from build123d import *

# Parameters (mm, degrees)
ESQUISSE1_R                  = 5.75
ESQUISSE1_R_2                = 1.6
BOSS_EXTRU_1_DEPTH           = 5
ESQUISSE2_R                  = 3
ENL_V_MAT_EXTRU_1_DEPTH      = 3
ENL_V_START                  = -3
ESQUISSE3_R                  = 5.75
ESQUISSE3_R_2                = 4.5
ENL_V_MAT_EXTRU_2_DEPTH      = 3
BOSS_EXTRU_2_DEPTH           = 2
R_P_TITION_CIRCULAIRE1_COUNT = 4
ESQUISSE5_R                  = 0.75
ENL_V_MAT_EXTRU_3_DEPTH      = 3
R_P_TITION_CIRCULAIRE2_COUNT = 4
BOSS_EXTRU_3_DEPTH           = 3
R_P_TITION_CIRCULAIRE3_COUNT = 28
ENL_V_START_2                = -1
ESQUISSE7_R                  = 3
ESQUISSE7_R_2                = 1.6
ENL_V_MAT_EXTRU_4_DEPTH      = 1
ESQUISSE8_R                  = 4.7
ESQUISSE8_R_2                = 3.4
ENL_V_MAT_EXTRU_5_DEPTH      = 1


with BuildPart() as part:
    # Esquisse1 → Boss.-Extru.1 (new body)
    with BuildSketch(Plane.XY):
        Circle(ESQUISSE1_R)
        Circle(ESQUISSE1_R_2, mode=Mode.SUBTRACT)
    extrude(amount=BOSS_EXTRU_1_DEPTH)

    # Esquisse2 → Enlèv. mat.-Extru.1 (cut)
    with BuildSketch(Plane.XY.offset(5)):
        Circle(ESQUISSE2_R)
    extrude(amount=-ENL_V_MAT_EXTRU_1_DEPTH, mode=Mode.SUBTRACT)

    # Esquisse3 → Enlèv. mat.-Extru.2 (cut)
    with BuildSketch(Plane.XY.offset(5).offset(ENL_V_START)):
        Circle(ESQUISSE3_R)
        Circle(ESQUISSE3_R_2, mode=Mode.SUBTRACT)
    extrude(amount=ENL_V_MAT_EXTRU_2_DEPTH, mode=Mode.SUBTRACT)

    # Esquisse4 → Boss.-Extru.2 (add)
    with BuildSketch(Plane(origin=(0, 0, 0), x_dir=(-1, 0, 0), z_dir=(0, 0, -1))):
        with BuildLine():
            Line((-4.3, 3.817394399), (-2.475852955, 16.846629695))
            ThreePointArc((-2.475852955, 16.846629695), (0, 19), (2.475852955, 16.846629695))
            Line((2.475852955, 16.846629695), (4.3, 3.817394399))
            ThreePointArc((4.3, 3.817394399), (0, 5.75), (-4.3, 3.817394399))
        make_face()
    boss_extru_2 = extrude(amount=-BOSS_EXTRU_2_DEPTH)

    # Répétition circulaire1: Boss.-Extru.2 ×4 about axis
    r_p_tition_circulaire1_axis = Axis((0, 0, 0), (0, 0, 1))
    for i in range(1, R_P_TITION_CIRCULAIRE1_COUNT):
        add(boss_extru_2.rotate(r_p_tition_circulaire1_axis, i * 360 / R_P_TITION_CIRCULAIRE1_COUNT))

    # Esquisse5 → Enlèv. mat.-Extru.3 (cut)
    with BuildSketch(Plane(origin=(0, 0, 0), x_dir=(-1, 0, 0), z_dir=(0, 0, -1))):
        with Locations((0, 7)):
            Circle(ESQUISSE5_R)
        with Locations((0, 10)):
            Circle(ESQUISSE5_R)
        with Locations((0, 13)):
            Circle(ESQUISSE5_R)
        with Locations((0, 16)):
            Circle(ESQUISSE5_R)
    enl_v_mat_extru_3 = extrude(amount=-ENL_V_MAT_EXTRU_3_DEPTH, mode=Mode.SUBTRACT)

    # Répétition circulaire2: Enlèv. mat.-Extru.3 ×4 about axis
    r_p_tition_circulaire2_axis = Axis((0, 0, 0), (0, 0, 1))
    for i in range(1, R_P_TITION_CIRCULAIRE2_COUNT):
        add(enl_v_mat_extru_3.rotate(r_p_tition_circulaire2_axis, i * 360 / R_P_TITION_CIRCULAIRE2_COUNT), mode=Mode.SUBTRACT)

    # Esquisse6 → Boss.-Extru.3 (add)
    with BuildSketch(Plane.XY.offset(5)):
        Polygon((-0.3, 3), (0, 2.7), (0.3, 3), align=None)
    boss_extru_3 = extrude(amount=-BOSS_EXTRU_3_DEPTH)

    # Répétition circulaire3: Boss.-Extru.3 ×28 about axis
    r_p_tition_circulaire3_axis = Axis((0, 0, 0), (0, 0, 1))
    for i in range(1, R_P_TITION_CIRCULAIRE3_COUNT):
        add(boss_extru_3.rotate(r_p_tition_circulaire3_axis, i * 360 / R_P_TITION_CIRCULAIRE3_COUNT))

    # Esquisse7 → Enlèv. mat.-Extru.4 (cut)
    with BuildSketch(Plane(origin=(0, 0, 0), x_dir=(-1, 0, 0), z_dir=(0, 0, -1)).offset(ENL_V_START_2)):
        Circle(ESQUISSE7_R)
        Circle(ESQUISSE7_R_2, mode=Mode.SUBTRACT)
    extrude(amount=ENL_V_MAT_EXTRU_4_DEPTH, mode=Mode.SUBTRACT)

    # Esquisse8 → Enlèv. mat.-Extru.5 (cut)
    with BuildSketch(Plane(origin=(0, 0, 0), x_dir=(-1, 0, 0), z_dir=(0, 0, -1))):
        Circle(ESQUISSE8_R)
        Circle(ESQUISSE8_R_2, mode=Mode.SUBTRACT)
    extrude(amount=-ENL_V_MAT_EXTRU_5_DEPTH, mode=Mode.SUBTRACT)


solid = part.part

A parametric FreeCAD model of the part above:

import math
import FreeCAD as App
import Part
import Sketcher

doc = App.newDocument("Part")
params = doc.addObject("Spreadsheet::Sheet", "Params")
for row, (alias, value) in enumerate([
    ("sketch1_diameter", "11.5 mm"),
    ("sketch1_diameter2", "3.2 mm"),
    ("pad1_length", "5 mm"),
    ("sketch2_diameter", "6 mm"),
    ("pocket1_length", "3 mm"),
    ("sketch3_diameter", "9 mm"),
    ("sketch3_diameter2", "11.5 mm"),
    ("pocket2_length", "3 mm"),
    ("sketch4_radius", "2.5 mm"),
    ("sketch4_radius2", "5.75 mm"),
    ("pad2_length", "2 mm"),
    ("sketch5_diameter", "1.5 mm"),
    ("pocket3_length", "3 mm"),
    ("sketch6_width", "0.6 mm"),
    ("pad3_length", "3 mm"),
    ("sketch7_diameter", "6 mm"),
    ("sketch7_diameter2", "3.2 mm"),
    ("pocket4_length", "1 mm"),
    ("sketch8_diameter", "9.4 mm"),
    ("sketch8_diameter2", "6.8 mm"),
    ("pocket5_length", "1 mm"),
], start=1):
    params.set(f"A{row}", alias)
    params.set(f"B{row}", "=" + value)
    params.setAlias(f"B{row}", alias)

body = doc.addObject("PartDesign::Body", "Body")

sketch1 = body.newObject("Sketcher::SketchObject", "Sketch")
sketch1.AttachmentSupport = (doc.getObject("XY_Plane"), [""])
sketch1.MapMode = "FlatFace"
sketch1.addGeometry(Part.Circle(App.Vector(0, 0, 0), App.Vector(0, 0, 1), 5.8), False)
sketch1.addGeometry(Part.Circle(App.Vector(0, 0, 0), App.Vector(0, 0, 1), 1.6), False)
sketch1.addConstraint(Sketcher.Constraint("Coincident", 0, 3, -1, 1))
sketch1.addConstraint(Sketcher.Constraint("Coincident", 1, 3, -1, 1))
sketch1.addConstraint(Sketcher.Constraint("Diameter", 0, 11.5))
sketch1.addConstraint(Sketcher.Constraint("Diameter", 1, 3.2))
sketch1.setExpression("Constraints[2]", "Params.sketch1_diameter")
sketch1.setExpression("Constraints[3]", "Params.sketch1_diameter2")
pad1 = body.newObject("PartDesign::Pad", "Pad")
pad1.Profile = sketch1
pad1.setExpression("Length", "Params.pad1_length")

sketch2 = body.newObject("Sketcher::SketchObject", "Sketch001")
sketch2.AttachmentSupport = (doc.getObject("XY_Plane"), [""])
sketch2.MapMode = "FlatFace"
sketch2.AttachmentOffset = App.Placement(App.Vector(0, 0, 5), App.Rotation())
sketch2.addGeometry(Part.Circle(App.Vector(0, 0, 0), App.Vector(0, 0, 1), 3), False)
sketch2.addConstraint(Sketcher.Constraint("Coincident", 0, 3, -1, 1))
sketch2.addConstraint(Sketcher.Constraint("Diameter", 0, 6.0))
sketch2.setExpression("Constraints[1]", "Params.sketch2_diameter")
pocket1 = body.newObject("PartDesign::Pocket", "Pocket")
pocket1.Profile = sketch2
pocket1.setExpression("Length", "Params.pocket1_length")

sketch3 = body.newObject("Sketcher::SketchObject", "Sketch002")
sketch3.AttachmentSupport = (doc.getObject("XY_Plane"), [""])
sketch3.MapMode = "FlatFace"
sketch3.AttachmentOffset = App.Placement(App.Vector(0, 0, 2), App.Rotation())
sketch3.addGeometry(Part.Circle(App.Vector(0, 0, 0), App.Vector(0, 0, 1), 5.8), False)
sketch3.addGeometry(Part.Circle(App.Vector(0, 0, 0), App.Vector(0, 0, 1), 4.5), False)
sketch3.addConstraint(Sketcher.Constraint("Coincident", 0, 3, -1, 1))
sketch3.addConstraint(Sketcher.Constraint("Coincident", 1, 3, -1, 1))
sketch3.addConstraint(Sketcher.Constraint("Diameter", 1, 9.0))
sketch3.addConstraint(Sketcher.Constraint("Diameter", 0, 11.5))
sketch3.setExpression("Constraints[2]", "Params.sketch3_diameter")
sketch3.setExpression("Constraints[3]", "Params.sketch3_diameter2")
pocket2 = body.newObject("PartDesign::Pocket", "Pocket001")
pocket2.Profile = sketch3
pocket2.setExpression("Length", "Params.pocket2_length")
pocket2.Reversed = True

sketch4 = body.newObject("Sketcher::SketchObject", "Sketch003")
sketch4.AttachmentSupport = (doc.getObject("XY_Plane"), [""])
sketch4.MapMode = "FlatFace"
sketch4.addGeometry(Part.LineSegment(App.Vector(2.5, 16.8, 0), App.Vector(4.3, 3.8, 0)), False)
sketch4.addGeometry(Part.ArcOfCircle(Part.Circle(App.Vector(0, 0, 0), App.Vector(0, 0, 1), 5.7), math.radians(42), math.radians(138)), False)
sketch4.addGeometry(Part.LineSegment(App.Vector(-4.3, 3.8, 0), App.Vector(-2.5, 16.8, 0)), False)
sketch4.addGeometry(Part.ArcOfCircle(Part.Circle(App.Vector(0, 16.5, 0), App.Vector(0, 0, 1), 2.5), math.radians(8), math.radians(172)), False)
sketch4.addConstraint(Sketcher.Constraint("Coincident", 0, 2, 1, 1))
sketch4.addConstraint(Sketcher.Constraint("Coincident", 1, 2, 2, 1))
sketch4.addConstraint(Sketcher.Constraint("Tangent", 2, 2, 3, 2))
sketch4.addConstraint(Sketcher.Constraint("Tangent", 3, 1, 0, 1))
sketch4.addConstraint(Sketcher.Constraint("Coincident", 1, 3, -1, 1))
sketch4.addConstraint(Sketcher.Constraint("Symmetric", 2, 2, 3, 1, -2))
sketch4.addConstraint(Sketcher.Constraint("Radius", 3, 2.5))
sketch4.addConstraint(Sketcher.Constraint("Radius", 1, 5.75))
sketch4.addConstraint(Sketcher.Constraint("DistanceY", -1, 1, 3, 3, 16.5))
sketch4.addConstraint(Sketcher.Constraint("DistanceX", -1, 1, 0, 2, 4.3))
sketch4.setExpression("Constraints[6]", "Params.sketch4_radius")
sketch4.setExpression("Constraints[7]", "Params.sketch4_radius2")
pad2 = body.newObject("PartDesign::Pad", "Pad001")
pad2.Profile = sketch4
pad2.setExpression("Length", "Params.pad2_length")
doc.recompute()

polarpattern = body.newObject("PartDesign::PolarPattern", "PolarPattern")
polarpattern.Originals = [pad2]
polarpattern.Axis = (doc.getObject("Z_Axis"), [""])
polarpattern.Angle = 360
polarpattern.Occurrences = 4
body.Tip = polarpattern

sketch5 = body.newObject("Sketcher::SketchObject", "Sketch004")
sketch5.AttachmentSupport = (doc.getObject("XY_Plane"), [""])
sketch5.MapMode = "FlatFace"
sketch5.addGeometry(Part.Circle(App.Vector(0, 7, 0), App.Vector(0, 0, 1), 0.8), False)
sketch5.addGeometry(Part.Circle(App.Vector(0, 10, 0), App.Vector(0, 0, 1), 0.8), False)
sketch5.addGeometry(Part.Circle(App.Vector(0, 13, 0), App.Vector(0, 0, 1), 0.8), False)
sketch5.addGeometry(Part.Circle(App.Vector(0, 16, 0), App.Vector(0, 0, 1), 0.8), False)
sketch5.addConstraint(Sketcher.Constraint("Equal", 0, 1))
sketch5.addConstraint(Sketcher.Constraint("Equal", 1, 2))
sketch5.addConstraint(Sketcher.Constraint("Equal", 2, 3))
sketch5.addConstraint(Sketcher.Constraint("PointOnObject", 0, 3, -2))
sketch5.addConstraint(Sketcher.Constraint("PointOnObject", 1, 3, -2))
sketch5.addConstraint(Sketcher.Constraint("PointOnObject", 2, 3, -2))
sketch5.addConstraint(Sketcher.Constraint("PointOnObject", 3, 3, -2))
sketch5.addConstraint(Sketcher.Constraint("Diameter", 0, 1.5))
sketch5.addConstraint(Sketcher.Constraint("DistanceY", -1, 1, 0, 3, 7.0))
sketch5.addConstraint(Sketcher.Constraint("DistanceY", -1, 1, 1, 3, 10.0))
sketch5.addConstraint(Sketcher.Constraint("DistanceY", -1, 1, 2, 3, 13.0))
sketch5.addConstraint(Sketcher.Constraint("DistanceY", -1, 1, 3, 3, 16.0))
sketch5.setExpression("Constraints[7]", "Params.sketch5_diameter")
pocket3 = body.newObject("PartDesign::Pocket", "Pocket002")
pocket3.Profile = sketch5
pocket3.setExpression("Length", "Params.pocket3_length")
pocket3.Reversed = True
doc.recompute()

polarpattern2 = body.newObject("PartDesign::PolarPattern", "PolarPattern001")
polarpattern2.Originals = [pocket3]
polarpattern2.Axis = (doc.getObject("Z_Axis"), [""])
polarpattern2.Angle = 360
polarpattern2.Occurrences = 4
body.Tip = polarpattern2

sketch6 = body.newObject("Sketcher::SketchObject", "Sketch005")
sketch6.AttachmentSupport = (doc.getObject("XY_Plane"), [""])
sketch6.MapMode = "FlatFace"
sketch6.AttachmentOffset = App.Placement(App.Vector(0, 0, 5), App.Rotation())
sketch6.addGeometry(Part.LineSegment(App.Vector(-0.3, 3, 0), App.Vector(0, 2.7, 0)), False)
sketch6.addGeometry(Part.LineSegment(App.Vector(0, 2.7, 0), App.Vector(0.3, 3, 0)), False)
sketch6.addGeometry(Part.LineSegment(App.Vector(0.3, 3, 0), App.Vector(-0.3, 3, 0)), False)
sketch6.addConstraint(Sketcher.Constraint("Coincident", 0, 2, 1, 1))
sketch6.addConstraint(Sketcher.Constraint("Coincident", 1, 2, 2, 1))
sketch6.addConstraint(Sketcher.Constraint("Coincident", 2, 2, 0, 1))
sketch6.addConstraint(Sketcher.Constraint("Horizontal", 2))
sketch6.addConstraint(Sketcher.Constraint("PointOnObject", 0, 2, -2))
sketch6.addConstraint(Sketcher.Constraint("Perpendicular", 0, 1))
sketch6.addConstraint(Sketcher.Constraint("Equal", 0, 1))
sketch6.addConstraint(Sketcher.Constraint("DistanceX", 2, 2, 2, 1, 0.6))
sketch6.addConstraint(Sketcher.Constraint("DistanceY", -1, 1, 1, 2, 3.0))
sketch6.setExpression("Constraints[7]", "Params.sketch6_width")
pad3 = body.newObject("PartDesign::Pad", "Pad002")
pad3.Profile = sketch6
pad3.setExpression("Length", "Params.pad3_length")
pad3.Reversed = True
doc.recompute()

polarpattern3 = body.newObject("PartDesign::PolarPattern", "PolarPattern002")
polarpattern3.Originals = [pad3]
polarpattern3.Axis = (doc.getObject("Z_Axis"), [""])
polarpattern3.Angle = 360
polarpattern3.Occurrences = 28
body.Tip = polarpattern3

sketch7 = body.newObject("Sketcher::SketchObject", "Sketch006")
sketch7.AttachmentSupport = (doc.getObject("XY_Plane"), [""])
sketch7.MapMode = "FlatFace"
sketch7.AttachmentOffset = App.Placement(App.Vector(0, 0, 1), App.Rotation())
sketch7.addGeometry(Part.Circle(App.Vector(0, 0, 0), App.Vector(0, 0, 1), 3), False)
sketch7.addGeometry(Part.Circle(App.Vector(0, 0, 0), App.Vector(0, 0, 1), 1.6), False)
sketch7.addConstraint(Sketcher.Constraint("Coincident", 0, 3, -1, 1))
sketch7.addConstraint(Sketcher.Constraint("Coincident", 1, 3, -1, 1))
sketch7.addConstraint(Sketcher.Constraint("Diameter", 0, 6.0))
sketch7.addConstraint(Sketcher.Constraint("Diameter", 1, 3.2))
sketch7.setExpression("Constraints[2]", "Params.sketch7_diameter")
sketch7.setExpression("Constraints[3]", "Params.sketch7_diameter2")
pocket4 = body.newObject("PartDesign::Pocket", "Pocket003")
pocket4.Profile = sketch7
pocket4.setExpression("Length", "Params.pocket4_length")

sketch8 = body.newObject("Sketcher::SketchObject", "Sketch007")
sketch8.AttachmentSupport = (doc.getObject("XY_Plane"), [""])
sketch8.MapMode = "FlatFace"
sketch8.addGeometry(Part.Circle(App.Vector(0, 0, 0), App.Vector(0, 0, 1), 4.7), False)
sketch8.addGeometry(Part.Circle(App.Vector(0, 0, 0), App.Vector(0, 0, 1), 3.4), False)
sketch8.addConstraint(Sketcher.Constraint("Coincident", 0, 3, -1, 1))
sketch8.addConstraint(Sketcher.Constraint("Coincident", 1, 3, -1, 1))
sketch8.addConstraint(Sketcher.Constraint("Diameter", 0, 9.4))
sketch8.addConstraint(Sketcher.Constraint("Diameter", 1, 6.8))
sketch8.setExpression("Constraints[2]", "Params.sketch8_diameter")
sketch8.setExpression("Constraints[3]", "Params.sketch8_diameter2")
pocket5 = body.newObject("PartDesign::Pocket", "Pocket004")
pocket5.Profile = sketch8
pocket5.setExpression("Length", "Params.pocket5_length")
pocket5.Reversed = True

doc.recompute()
